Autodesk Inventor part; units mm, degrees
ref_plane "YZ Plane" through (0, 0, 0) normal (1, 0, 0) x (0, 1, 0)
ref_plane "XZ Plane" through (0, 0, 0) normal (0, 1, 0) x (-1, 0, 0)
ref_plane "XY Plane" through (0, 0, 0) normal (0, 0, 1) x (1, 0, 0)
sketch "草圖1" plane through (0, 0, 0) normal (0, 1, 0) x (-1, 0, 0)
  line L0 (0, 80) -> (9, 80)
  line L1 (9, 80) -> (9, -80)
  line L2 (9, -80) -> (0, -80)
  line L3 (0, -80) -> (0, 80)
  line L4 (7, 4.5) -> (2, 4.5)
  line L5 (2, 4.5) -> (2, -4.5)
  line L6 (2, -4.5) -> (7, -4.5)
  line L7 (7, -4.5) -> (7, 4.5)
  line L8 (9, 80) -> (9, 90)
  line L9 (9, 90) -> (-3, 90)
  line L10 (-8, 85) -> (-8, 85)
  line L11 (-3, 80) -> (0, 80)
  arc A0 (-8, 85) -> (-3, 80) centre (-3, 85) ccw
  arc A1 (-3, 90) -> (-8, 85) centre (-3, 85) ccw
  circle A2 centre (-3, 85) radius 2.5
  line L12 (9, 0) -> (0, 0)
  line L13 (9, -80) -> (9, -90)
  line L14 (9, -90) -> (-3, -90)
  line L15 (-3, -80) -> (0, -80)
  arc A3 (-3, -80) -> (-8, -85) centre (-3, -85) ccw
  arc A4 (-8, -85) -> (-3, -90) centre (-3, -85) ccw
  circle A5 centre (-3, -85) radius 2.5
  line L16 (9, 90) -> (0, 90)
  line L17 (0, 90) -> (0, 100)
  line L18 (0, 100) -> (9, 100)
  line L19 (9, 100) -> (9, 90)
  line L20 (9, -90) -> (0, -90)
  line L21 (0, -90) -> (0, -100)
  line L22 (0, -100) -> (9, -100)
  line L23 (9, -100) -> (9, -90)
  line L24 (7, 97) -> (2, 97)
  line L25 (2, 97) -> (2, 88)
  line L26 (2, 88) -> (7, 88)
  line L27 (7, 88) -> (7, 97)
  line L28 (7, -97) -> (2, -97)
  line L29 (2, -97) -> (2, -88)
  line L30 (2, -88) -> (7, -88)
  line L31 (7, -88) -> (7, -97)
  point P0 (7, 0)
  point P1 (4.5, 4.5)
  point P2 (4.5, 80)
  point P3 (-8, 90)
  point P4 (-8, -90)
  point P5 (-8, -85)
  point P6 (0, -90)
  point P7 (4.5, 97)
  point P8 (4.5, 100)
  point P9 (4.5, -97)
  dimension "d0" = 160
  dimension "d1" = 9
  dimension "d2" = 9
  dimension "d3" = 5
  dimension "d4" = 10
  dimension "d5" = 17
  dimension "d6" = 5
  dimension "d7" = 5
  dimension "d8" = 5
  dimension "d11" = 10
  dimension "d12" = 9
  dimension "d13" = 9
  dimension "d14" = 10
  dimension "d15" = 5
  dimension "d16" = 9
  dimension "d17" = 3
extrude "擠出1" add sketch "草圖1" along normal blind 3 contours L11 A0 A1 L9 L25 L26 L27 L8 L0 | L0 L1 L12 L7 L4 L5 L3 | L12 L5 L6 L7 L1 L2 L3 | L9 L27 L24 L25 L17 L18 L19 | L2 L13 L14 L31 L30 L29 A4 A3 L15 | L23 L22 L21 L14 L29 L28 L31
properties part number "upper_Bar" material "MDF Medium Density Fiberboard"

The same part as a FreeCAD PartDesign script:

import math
import FreeCAD as App
import Part
import Sketcher
from FreeCAD import Vector

doc = App.newDocument("Part")
params = doc.addObject("Spreadsheet::Sheet", "Params")
for row, (alias, value) in enumerate([
    ("sketch1_diameter", "5 mm"),
    ("sketch1_radius", "5 mm"),
    ("sketch1_width", "3 mm"),
    ("sketch1_width2", "9 mm"),
    ("sketch1_width3", "5 mm"),
    ("pad1_length", "3 mm"),
], start=1):
    params.set(f"A{row}", alias)
    params.set(f"B{row}", "=" + value)
    params.setAlias(f"B{row}", alias)

body = doc.addObject("PartDesign::Body", "Body")

sketch1 = doc.addObject("Sketcher::SketchObject", "Sketch")
body.addObject(sketch1)
sketch1.AttachmentSupport = (doc.XZ_Plane, [""])
sketch1.MapMode = "FlatFace"
sketch1.addGeometry(Part.LineSegment(Vector(3, 80, 0), Vector(0, 80, 0)), False)
sketch1.addGeometry(Part.LineSegment(Vector(0, 80, 0), Vector(0, -80, 0)), False)
sketch1.addGeometry(Part.LineSegment(Vector(0, -80, 0), Vector(3, -80, 0)), False)
sketch1.addGeometry(Part.ArcOfCircle(Part.Circle(Vector(3, -85, 0), Vector(0, 0, 1), 5), math.radians(-90), math.radians(90)), False)
sketch1.addGeometry(Part.LineSegment(Vector(3, -90, 0), Vector(0, -90, 0)), False)
sketch1.addGeometry(Part.LineSegment(Vector(0, -90, 0), Vector(0, -100, 0)), False)
sketch1.addGeometry(Part.LineSegment(Vector(0, -100, 0), Vector(-9, -100, 0)), False)
sketch1.addGeometry(Part.LineSegment(Vector(-9, -100, 0), Vector(-9, 100, 0)), False)
sketch1.addGeometry(Part.LineSegment(Vector(-9, 100, 0), Vector(0, 100, 0)), False)
sketch1.addGeometry(Part.LineSegment(Vector(0, 100, 0), Vector(0, 90, 0)), False)
sketch1.addGeometry(Part.LineSegment(Vector(0, 90, 0), Vector(3, 90, 0)), False)
sketch1.addGeometry(Part.ArcOfCircle(Part.Circle(Vector(3, 85, 0), Vector(0, 0, 1), 5), math.radians(-90), math.radians(90)), False)
sketch1.addGeometry(Part.LineSegment(Vector(-2, 88, 0), Vector(-2, 97, 0)), False)
sketch1.addGeometry(Part.LineSegment(Vector(-2, 97, 0), Vector(-7, 97, 0)), False)
sketch1.addGeometry(Part.LineSegment(Vector(-7, 97, 0), Vector(-7, 88, 0)), False)
sketch1.addGeometry(Part.LineSegment(Vector(-7, 88, 0), Vector(-2, 88, 0)), False)
sketch1.addGeometry(Part.Circle(Vector(3, 85, 0), Vector(0, 0, 1), 2.5), False)
sketch1.addGeometry(Part.LineSegment(Vector(-7, 4.5, 0), Vector(-7, -4.5, 0)), False)
sketch1.addGeometry(Part.LineSegment(Vector(-7, -4.5, 0), Vector(-2, -4.5, 0)), False)
sketch1.addGeometry(Part.LineSegment(Vector(-2, -4.5, 0), Vector(-2, 4.5, 0)), False)
sketch1.addGeometry(Part.LineSegment(Vector(-2, 4.5, 0), Vector(-7, 4.5, 0)), False)
sketch1.addGeometry(Part.Circle(Vector(3, -85, 0), Vector(0, 0, 1), 2.5), False)
sketch1.addGeometry(Part.LineSegment(Vector(-7, -88, 0), Vector(-7, -97, 0)), False)
sketch1.addGeometry(Part.LineSegment(Vector(-7, -97, 0), Vector(-2, -97, 0)), False)
sketch1.addGeometry(Part.LineSegment(Vector(-2, -97, 0), Vector(-2, -88, 0)), False)
sketch1.addGeometry(Part.LineSegment(Vector(-2, -88, 0), Vector(-7, -88, 0)), False)
sketch1.addConstraint(Sketcher.Constraint("Coincident", 0, 2, 1, 1))
sketch1.addConstraint(Sketcher.Constraint("Coincident", 1, 2, 2, 1))
sketch1.addConstraint(Sketcher.Constraint("Tangent", 2, 2, 3, 2))
sketch1.addConstraint(Sketcher.Constraint("Tangent", 3, 1, 4, 1))
sketch1.addConstraint(Sketcher.Constraint("Coincident", 4, 2, 5, 1))
sketch1.addConstraint(Sketcher.Constraint("Coincident", 5, 2, 6, 1))
sketch1.addConstraint(Sketcher.Constraint("Coincident", 6, 2, 7, 1))
sketch1.addConstraint(Sketcher.Constraint("Coincident", 7, 2, 8, 1))
sketch1.addConstraint(Sketcher.Constraint("Coincident", 8, 2, 9, 1))
sketch1.addConstraint(Sketcher.Constraint("Coincident", 9, 2, 10, 1))
sketch1.addConstraint(Sketcher.Constraint("Tangent", 10, 2, 11, 2))
sketch1.addConstraint(Sketcher.Constraint("Tangent", 11, 1, 0, 1))
sketch1.addConstraint(Sketcher.Constraint("Coincident", 12, 2, 13, 1))
sketch1.addConstraint(Sketcher.Constraint("Coincident", 13, 2, 14, 1))
sketch1.addConstraint(Sketcher.Constraint("Coincident", 14, 2, 15, 1))
sketch1.addConstraint(Sketcher.Constraint("Coincident", 15, 2, 12, 1))
sketch1.addConstraint(Sketcher.Constraint("Coincident", 17, 2, 18, 1))
sketch1.addConstraint(Sketcher.Constraint("Coincident", 18, 2, 19, 1))
sketch1.addConstraint(Sketcher.Constraint("Coincident", 19, 2, 20, 1))
sketch1.addConstraint(Sketcher.Constraint("Coincident", 20, 2, 17, 1))
sketch1.addConstraint(Sketcher.Constraint("Coincident", 22, 2, 23, 1))
sketch1.addConstraint(Sketcher.Constraint("Coincident", 23, 2, 24, 1))
sketch1.addConstraint(Sketcher.Constraint("Coincident", 24, 2, 25, 1))
sketch1.addConstraint(Sketcher.Constraint("Coincident", 25, 2, 22, 1))
sketch1.addConstraint(Sketcher.Constraint("Horizontal", 0))
sketch1.addConstraint(Sketcher.Constraint("Vertical", 1))
sketch1.addConstraint(Sketcher.Constraint("Horizontal", 2))
sketch1.addConstraint(Sketcher.Constraint("Horizontal", 4))
sketch1.addConstraint(Sketcher.Constraint("Vertical", 5))
sketch1.addConstraint(Sketcher.Constraint("Horizontal", 6))
sketch1.addConstraint(Sketcher.Constraint("Vertical", 7))
sketch1.addConstraint(Sketcher.Constraint("Horizontal", 8))
sketch1.addConstraint(Sketcher.Constraint("Vertical", 9))
sketch1.addConstraint(Sketcher.Constraint("Horizontal", 10))
sketch1.addConstraint(Sketcher.Constraint("Vertical", 12))
sketch1.addConstraint(Sketcher.Constraint("Horizontal", 13))
sketch1.addConstraint(Sketcher.Constraint("Vertical", 14))
sketch1.addConstraint(Sketcher.Constraint("Horizontal", 15))
sketch1.addConstraint(Sketcher.Constraint("Vertical", 17))
sketch1.addConstraint(Sketcher.Constraint("Horizontal", 18))
sketch1.addConstraint(Sketcher.Constraint("Vertical", 19))
sketch1.addConstraint(Sketcher.Constraint("Horizontal", 20))
sketch1.addConstraint(Sketcher.Constraint("Vertical", 22))
sketch1.addConstraint(Sketcher.Constraint("Horizontal", 23))
sketch1.addConstraint(Sketcher.Constraint("Vertical", 24))
sketch1.addConstraint(Sketcher.Constraint("Horizontal", 25))
sketch1.addConstraint(Sketcher.Constraint("Coincident", 16, 3, 11, 3))
sketch1.addConstraint(Sketcher.Constraint("Coincident", 21, 3, 3, 3))
sketch1.addConstraint(Sketcher.Constraint("Equal", 3, 11))
sketch1.addConstraint(Sketcher.Constraint("Equal", 16, 21))
sketch1.addConstraint(Sketcher.Constraint("Symmetric", 0, 2, 1, 2, -1, 1))
sketch1.addConstraint(Sketcher.Constraint("Symmetric", 5, 2, 8, 2, -1, 1))
sketch1.addConstraint(Sketcher.Constraint("Symmetric", 13, 2, 22, 2, -1))
sketch1.addConstraint(Sketcher.Constraint("Symmetric", 15, 2, 24, 2, -1))
sketch1.addConstraint(Sketcher.Constraint("PointOnObject", 4, 2, -2))
sketch1.addConstraint(Sketcher.Constraint("Vertical", 3, 3, 11, 3))
sketch1.addConstraint(Sketcher.Constraint("Vertical", 14, 2, 17, 2))
sketch1.addConstraint(Sketcher.Constraint("Vertical", 15, 2, 18, 2))
sketch1.addConstraint(Sketcher.Constraint("Equal", 8, 12))
sketch1.addConstraint(Sketcher.Constraint("Equal", 14, 17))
sketch1.addConstraint(Sketcher.Constraint("Diameter", 16, 5.0))
sketch1.addConstraint(Sketcher.Constraint("Radius", 3, 5.0))
sketch1.addConstraint(Sketcher.Constraint("DistanceX", 0, 2, 0, 1, 3.0))
sketch1.addConstraint(Sketcher.Constraint("DistanceX", 6, 2, 6, 1, 9.0))
sketch1.addConstraint(Sketcher.Constraint("DistanceX", 13, 2, 13, 1, 5.0))
sketch1.addConstraint(Sketcher.Constraint("DistanceY", 1, 2, 1, 1, 160.0))
sketch1.addConstraint(Sketcher.Constraint("DistanceY", 5, 2, 5, 1, 10.0))
sketch1.addConstraint(Sketcher.Constraint("DistanceY", 12, 2, 8, 2, 3.0))
sketch1.addConstraint(Sketcher.Constraint("DistanceX", 12, 2, 10, 2, 5.0))
sketch1.addConstraint(Sketcher.Constraint("DistanceY", 17, 2, -1, 1, 4.5))
sketch1.setExpression("Constraints[60]", "Params.sketch1_diameter")
sketch1.setExpression("Constraints[61]", "Params.sketch1_radius")
sketch1.setExpression("Constraints[62]", "Params.sketch1_width")
sketch1.setExpression("Constraints[63]", "Params.sketch1_width2")
sketch1.setExpression("Constraints[64]", "Params.sketch1_width3")
pad1 = doc.addObject("PartDesign::Pad", "Pad")
body.addObject(pad1)
pad1.Profile = sketch1
pad1.setExpression("Length", "Params.pad1_length")
pad1.Reversed = True

doc.recompute()
